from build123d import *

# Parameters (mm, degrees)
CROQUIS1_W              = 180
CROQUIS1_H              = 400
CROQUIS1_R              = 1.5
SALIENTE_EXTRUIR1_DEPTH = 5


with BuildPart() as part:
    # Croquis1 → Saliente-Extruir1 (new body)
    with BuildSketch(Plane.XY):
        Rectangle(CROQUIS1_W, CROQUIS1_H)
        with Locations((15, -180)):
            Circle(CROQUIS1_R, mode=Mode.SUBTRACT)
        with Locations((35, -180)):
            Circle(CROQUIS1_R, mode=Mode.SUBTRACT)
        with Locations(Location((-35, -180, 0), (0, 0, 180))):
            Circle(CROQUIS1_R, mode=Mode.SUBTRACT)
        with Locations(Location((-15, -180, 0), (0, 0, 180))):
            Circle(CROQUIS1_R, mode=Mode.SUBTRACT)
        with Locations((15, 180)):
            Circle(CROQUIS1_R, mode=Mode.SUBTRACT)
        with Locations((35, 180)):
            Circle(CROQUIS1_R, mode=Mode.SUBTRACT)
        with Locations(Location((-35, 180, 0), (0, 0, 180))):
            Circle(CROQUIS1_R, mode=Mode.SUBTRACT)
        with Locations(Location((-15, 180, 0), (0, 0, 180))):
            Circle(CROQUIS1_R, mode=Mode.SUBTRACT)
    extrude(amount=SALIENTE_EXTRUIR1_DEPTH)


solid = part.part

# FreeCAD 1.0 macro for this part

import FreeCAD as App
import Part
import Sketcher


def add_polygon(sketch, points):
    """Adds a closed chain of lines whose ends are joined by coincident constraints."""
    first, n = sketch.GeometryCount, len(points)
    for a, b in zip(points, points[1:] + points[:1]):
        sketch.addGeometry(Part.LineSegment(App.Vector(*a, 0), App.Vector(*b, 0)), False)
    for i in range(n):
        sketch.addConstraint(Sketcher.Constraint("Coincident", first + i, 2, first + (i + 1) % n, 1))

doc = App.newDocument("Part")
body = doc.addObject("PartDesign::Body", "Body")

# Sketch on XY plane
sketch1 = doc.addObject("Sketcher::SketchObject", "Sketch")
body.addObject(sketch1)
sketch1.AttachmentSupport = (doc.XY_Plane, [""])
sketch1.MapMode = "FlatFace"
add_polygon(sketch1, [(-90, 200), (-90, -200), (90, -200), (90, 200)])  # lines 0-3
sketch1.addGeometry(Part.Circle(App.Vector(-35, -180, 0), App.Vector(0, 0, 1), 1.5), False)  # 4
sketch1.addGeometry(Part.Circle(App.Vector(-15, -180, 0), App.Vector(0, 0, 1), 1.5), False)  # 5
sketch1.addGeometry(Part.Circle(App.Vector(15, -180, 0), App.Vector(0, 0, 1), 1.5), False)  # 6
sketch1.addGeometry(Part.Circle(App.Vector(35, -180, 0), App.Vector(0, 0, 1), 1.5), False)  # 7
sketch1.addGeometry(Part.Circle(App.Vector(-35, 180, 0), App.Vector(0, 0, 1), 1.5), False)  # 8
sketch1.addGeometry(Part.Circle(App.Vector(-15, 180, 0), App.Vector(0, 0, 1), 1.5), False)  # 9
sketch1.addGeometry(Part.Circle(App.Vector(15, 180, 0), App.Vector(0, 0, 1), 1.5), False)  # 10
sketch1.addGeometry(Part.Circle(App.Vector(35, 180, 0), App.Vector(0, 0, 1), 1.5), False)  # 11
sketch1.addConstraint([
    Sketcher.Constraint("Vertical", 0),
    Sketcher.Constraint("Horizontal", 1),
    Sketcher.Constraint("Vertical", 2),
    Sketcher.Constraint("Horizontal", 3),
    Sketcher.Constraint("Equal", 4, 5),
    Sketcher.Constraint("Equal", 5, 6),
    Sketcher.Constraint("Equal", 6, 7),
    Sketcher.Constraint("Equal", 7, 8),
    Sketcher.Constraint("Equal", 8, 9),
    Sketcher.Constraint("Equal", 9, 10),
    Sketcher.Constraint("Equal", 10, 11),
    Sketcher.Constraint("Symmetric", 7, 3, 8, 3, -1, 1),
    Sketcher.Constraint("Symmetric", 6, 3, 9, 3, -1, 1),
    Sketcher.Constraint("Symmetric", 5, 3, 10, 3, -1, 1),
    Sketcher.Constraint("Symmetric", 4, 3, 11, 3, -1, 1),
    Sketcher.Constraint("Symmetric", 0, 2, 2, 2, -1, 1),
    Sketcher.Constraint("Symmetric", 5, 3, 6, 3, -2),
    Sketcher.Constraint("Symmetric", 4, 3, 7, 3, -2),
    Sketcher.Constraint("Horizontal", 4, 3, 5, 3),
    Sketcher.Constraint("Diameter", 4, 3.0),
    Sketcher.Constraint("DistanceX", 1, 1, 1, 2, 180.0),
    Sketcher.Constraint("DistanceY", 0, 2, 0, 1, 400.0),
    Sketcher.Constraint("DistanceX", 4, 3, -1, 1, 35.0),
    Sketcher.Constraint("DistanceY", 4, 3, -1, 1, 180.0),
    Sketcher.Constraint("DistanceX", 5, 3, -1, 1, 15.0),
])
pad1 = doc.addObject("PartDesign::Pad", "Pad")
body.addObject(pad1)
pad1.Profile = sketch1
pad1.Length = 5

doc.recompute()
